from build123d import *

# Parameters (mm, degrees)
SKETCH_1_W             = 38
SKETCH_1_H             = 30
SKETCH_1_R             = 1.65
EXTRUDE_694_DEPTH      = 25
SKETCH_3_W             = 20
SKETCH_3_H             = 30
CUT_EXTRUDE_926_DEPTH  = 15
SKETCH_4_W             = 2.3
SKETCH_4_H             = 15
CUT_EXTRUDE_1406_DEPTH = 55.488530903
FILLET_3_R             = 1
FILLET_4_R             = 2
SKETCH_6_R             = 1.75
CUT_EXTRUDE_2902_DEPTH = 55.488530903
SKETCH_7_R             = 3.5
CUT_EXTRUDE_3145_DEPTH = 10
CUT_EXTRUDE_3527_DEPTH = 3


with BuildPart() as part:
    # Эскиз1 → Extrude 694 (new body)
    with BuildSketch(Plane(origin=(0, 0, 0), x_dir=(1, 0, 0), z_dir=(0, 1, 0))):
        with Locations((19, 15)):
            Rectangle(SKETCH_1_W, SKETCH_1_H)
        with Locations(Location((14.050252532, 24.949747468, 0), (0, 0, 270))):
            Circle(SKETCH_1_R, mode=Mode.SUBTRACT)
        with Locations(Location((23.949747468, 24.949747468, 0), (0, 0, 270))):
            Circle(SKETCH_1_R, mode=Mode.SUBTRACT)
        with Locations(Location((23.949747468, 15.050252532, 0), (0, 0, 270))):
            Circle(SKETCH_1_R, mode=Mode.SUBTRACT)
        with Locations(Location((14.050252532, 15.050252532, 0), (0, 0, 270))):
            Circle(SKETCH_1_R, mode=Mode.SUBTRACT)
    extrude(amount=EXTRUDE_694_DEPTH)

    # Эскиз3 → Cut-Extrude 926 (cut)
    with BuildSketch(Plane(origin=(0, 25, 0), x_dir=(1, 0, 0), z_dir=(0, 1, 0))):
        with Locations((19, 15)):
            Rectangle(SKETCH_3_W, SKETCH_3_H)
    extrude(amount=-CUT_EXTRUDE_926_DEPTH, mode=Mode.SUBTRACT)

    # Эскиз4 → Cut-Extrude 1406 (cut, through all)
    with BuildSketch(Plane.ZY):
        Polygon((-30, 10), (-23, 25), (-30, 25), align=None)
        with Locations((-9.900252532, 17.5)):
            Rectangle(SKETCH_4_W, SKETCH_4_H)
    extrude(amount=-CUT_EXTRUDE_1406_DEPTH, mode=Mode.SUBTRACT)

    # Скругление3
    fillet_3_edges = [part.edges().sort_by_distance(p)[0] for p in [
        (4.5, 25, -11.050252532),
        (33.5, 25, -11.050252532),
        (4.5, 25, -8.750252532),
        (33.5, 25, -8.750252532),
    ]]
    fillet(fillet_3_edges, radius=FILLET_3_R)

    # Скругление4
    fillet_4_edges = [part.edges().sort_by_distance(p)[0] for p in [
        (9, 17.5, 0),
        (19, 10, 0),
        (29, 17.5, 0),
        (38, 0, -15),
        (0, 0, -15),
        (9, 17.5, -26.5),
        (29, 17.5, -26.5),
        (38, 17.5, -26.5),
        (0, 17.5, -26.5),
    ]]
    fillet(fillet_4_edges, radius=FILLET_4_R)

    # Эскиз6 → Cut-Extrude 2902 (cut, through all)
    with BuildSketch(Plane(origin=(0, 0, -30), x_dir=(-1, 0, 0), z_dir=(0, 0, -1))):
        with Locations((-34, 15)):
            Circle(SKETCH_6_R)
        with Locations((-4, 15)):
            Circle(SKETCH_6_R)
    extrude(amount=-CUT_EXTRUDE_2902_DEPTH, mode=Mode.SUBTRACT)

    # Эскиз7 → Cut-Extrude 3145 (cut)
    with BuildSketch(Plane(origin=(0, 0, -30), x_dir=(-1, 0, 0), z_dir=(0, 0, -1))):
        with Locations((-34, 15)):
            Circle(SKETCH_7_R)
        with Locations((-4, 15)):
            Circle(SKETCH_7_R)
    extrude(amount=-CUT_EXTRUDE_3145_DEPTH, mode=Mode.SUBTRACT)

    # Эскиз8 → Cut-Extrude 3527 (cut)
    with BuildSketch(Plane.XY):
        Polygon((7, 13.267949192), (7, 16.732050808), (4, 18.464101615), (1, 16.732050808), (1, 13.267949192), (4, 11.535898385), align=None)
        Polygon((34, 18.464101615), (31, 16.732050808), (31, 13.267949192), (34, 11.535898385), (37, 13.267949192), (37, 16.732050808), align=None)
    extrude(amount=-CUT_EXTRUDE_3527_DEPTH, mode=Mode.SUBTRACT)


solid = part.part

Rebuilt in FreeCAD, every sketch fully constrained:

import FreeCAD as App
import Part
import Sketcher
Q = App.Units.Quantity


def edges_at(feature, points):
    """Names of the edges that pass closest to the given points."""
    edges = feature.Shape.Edges
    near = lambda p: min(range(len(edges)), key=lambda i: edges[i].distToShape(Part.Vertex(*p))[0])
    return sorted({f"Edge{near(p) + 1}" for p in points})

doc = App.newDocument("Part")
body = doc.addObject("PartDesign::Body", "Body")

# Sketch on XZ plane
sketch1 = body.newObject("Sketcher::SketchObject", "Sketch")
sketch1.AttachmentSupport = (doc.getObject("XZ_Plane"), [""])
sketch1.MapMode = "FlatFace"
sketch1.addGeometry(Part.LineSegment(App.Vector(0, -30, 0), App.Vector(0, 0, 0)), False)
sketch1.addGeometry(Part.LineSegment(App.Vector(0, 0, 0), App.Vector(38, 0, 0)), False)
sketch1.addGeometry(Part.LineSegment(App.Vector(38, 0, 0), App.Vector(38, -30, 0)), False)
sketch1.addGeometry(Part.LineSegment(App.Vector(38, -30, 0), App.Vector(0, -30, 0)), False)
sketch1.addGeometry(Part.Circle(App.Vector(14.1, -15.1, 0), App.Vector(0, 0, 1), 1.6), False)
sketch1.addGeometry(Part.Circle(App.Vector(23.9, -15.1, 0), App.Vector(0, 0, 1), 1.6), False)
sketch1.addGeometry(Part.Circle(App.Vector(14.1, -24.9, 0), App.Vector(0, 0, 1), 1.6), False)
sketch1.addGeometry(Part.Circle(App.Vector(23.9, -24.9, 0), App.Vector(0, 0, 1), 1.6), False)
sketch1.addConstraint(Sketcher.Constraint("Coincident", 0, 2, 1, 1))
sketch1.addConstraint(Sketcher.Constraint("Coincident", 1, 2, 2, 1))
sketch1.addConstraint(Sketcher.Constraint("Coincident", 2, 2, 3, 1))
sketch1.addConstraint(Sketcher.Constraint("Coincident", 3, 2, 0, 1))
sketch1.addConstraint(Sketcher.Constraint("Vertical", 0))
sketch1.addConstraint(Sketcher.Constraint("Horizontal", 1))
sketch1.addConstraint(Sketcher.Constraint("Vertical", 2))
sketch1.addConstraint(Sketcher.Constraint("Horizontal", 3))
sketch1.addConstraint(Sketcher.Constraint("Coincident", 0, 2, -1, 1))
sketch1.addConstraint(Sketcher.Constraint("Equal", 4, 5))
sketch1.addConstraint(Sketcher.Constraint("Equal", 5, 6))
sketch1.addConstraint(Sketcher.Constraint("Equal", 6, 7))
sketch1.addConstraint(Sketcher.Constraint("Horizontal", 4, 3, 5, 3))
sketch1.addConstraint(Sketcher.Constraint("Horizontal", 6, 3, 7, 3))
sketch1.addConstraint(Sketcher.Constraint("Vertical", 4, 3, 6, 3))
sketch1.addConstraint(Sketcher.Constraint("Vertical", 5, 3, 7, 3))
sketch1.addConstraint(Sketcher.Constraint("Diameter", 4, 3.3))
sketch1.addConstraint(Sketcher.Constraint("DistanceX", 1, 1, 1, 2, 38.0))
sketch1.addConstraint(Sketcher.Constraint("DistanceY", 0, 1, 0, 2, 30.0))
sketch1.addConstraint(Sketcher.Constraint("DistanceX", -1, 1, 4, 3, 14.050253))
sketch1.addConstraint(Sketcher.Constraint("DistanceY", 4, 3, -1, 1, 15.050253))
sketch1.addConstraint(Sketcher.Constraint("DistanceX", -1, 1, 5, 3, 23.949747))
sketch1.addConstraint(Sketcher.Constraint("DistanceY", 6, 3, -1, 1, 24.949747))
pad1 = body.newObject("PartDesign::Pad", "Pad")
pad1.Profile = sketch1
pad1.Length = 25
pad1.Reversed = True

# Sketch on XZ plane
sketch2 = body.newObject("Sketcher::SketchObject", "Sketch001")
sketch2.AttachmentSupport = (doc.getObject("XZ_Plane"), [""])
sketch2.MapMode = "FlatFace"
sketch2.AttachmentOffset = App.Placement(App.Vector(0, 0, -25), App.Rotation())
sketch2.addGeometry(Part.LineSegment(App.Vector(9, -30, 0), App.Vector(9, 0, 0)), False)
sketch2.addGeometry(Part.LineSegment(App.Vector(9, 0, 0), App.Vector(29, 0, 0)), False)
sketch2.addGeometry(Part.LineSegment(App.Vector(29, 0, 0), App.Vector(29, -30, 0)), False)
sketch2.addGeometry(Part.LineSegment(App.Vector(29, -30, 0), App.Vector(9, -30, 0)), False)
sketch2.addConstraint(Sketcher.Constraint("Coincident", 0, 2, 1, 1))
sketch2.addConstraint(Sketcher.Constraint("Coincident", 1, 2, 2, 1))
sketch2.addConstraint(Sketcher.Constraint("Coincident", 2, 2, 3, 1))
sketch2.addConstraint(Sketcher.Constraint("Coincident", 3, 2, 0, 1))
sketch2.addConstraint(Sketcher.Constraint("Vertical", 0))
sketch2.addConstraint(Sketcher.Constraint("Horizontal", 1))
sketch2.addConstraint(Sketcher.Constraint("Vertical", 2))
sketch2.addConstraint(Sketcher.Constraint("Horizontal", 3))
sketch2.addConstraint(Sketcher.Constraint("PointOnObject", 0, 2, -1))
sketch2.addConstraint(Sketcher.Constraint("DistanceX", 1, 1, 1, 2, 20.0))
sketch2.addConstraint(Sketcher.Constraint("DistanceY", 0, 1, 0, 2, 30.0))
sketch2.addConstraint(Sketcher.Constraint("DistanceX", -1, 1, 0, 2, 9.0))
pocket1 = body.newObject("PartDesign::Pocket", "Pocket")
pocket1.Profile = sketch2
pocket1.Length = 15
pocket1.Reversed = True

# Sketch on YZ plane
sketch3 = body.newObject("Sketcher::SketchObject", "Sketch002")
sketch3.AttachmentSupport = (doc.getObject("YZ_Plane"), [""])
sketch3.MapMode = "FlatFace"
sketch3.addGeometry(Part.LineSegment(App.Vector(10, -30, 0), App.Vector(25, -23, 0)), False)
sketch3.addGeometry(Part.LineSegment(App.Vector(25, -23, 0), App.Vector(25, -30, 0)), False)
sketch3.addGeometry(Part.LineSegment(App.Vector(25, -30, 0), App.Vector(10, -30, 0)), False)
sketch3.addGeometry(Part.LineSegment(App.Vector(25, -11.1, 0), App.Vector(10, -11.1, 0)), False)
sketch3.addGeometry(Part.LineSegment(App.Vector(10, -11.1, 0), App.Vector(10, -8.8, 0)), False)
sketch3.addGeometry(Part.LineSegment(App.Vector(10, -8.8, 0), App.Vector(25, -8.8, 0)), False)
sketch3.addGeometry(Part.LineSegment(App.Vector(25, -8.8, 0), App.Vector(25, -11.1, 0)), False)
sketch3.addConstraint(Sketcher.Constraint("Coincident", 0, 2, 1, 1))
sketch3.addConstraint(Sketcher.Constraint("Coincident", 1, 2, 2, 1))
sketch3.addConstraint(Sketcher.Constraint("Coincident", 2, 2, 0, 1))
sketch3.addConstraint(Sketcher.Constraint("Coincident", 3, 2, 4, 1))
sketch3.addConstraint(Sketcher.Constraint("Coincident", 4, 2, 5, 1))
sketch3.addConstraint(Sketcher.Constraint("Coincident", 5, 2, 6, 1))
sketch3.addConstraint(Sketcher.Constraint("Coincident", 6, 2, 3, 1))
sketch3.addConstraint(Sketcher.Constraint("Vertical", 1))
sketch3.addConstraint(Sketcher.Constraint("Horizontal", 2))
sketch3.addConstraint(Sketcher.Constraint("Horizontal", 3))
sketch3.addConstraint(Sketcher.Constraint("Vertical", 4))
sketch3.addConstraint(Sketcher.Constraint("Horizontal", 5))
sketch3.addConstraint(Sketcher.Constraint("Vertical", 6))
sketch3.addConstraint(Sketcher.Constraint("Vertical", 2, 2, 3, 2))
sketch3.addConstraint(Sketcher.Constraint("Vertical", 1, 2, 5, 2))
sketch3.addConstraint(Sketcher.Constraint("DistanceX", 2, 2, 2, 1, 15.0))
sketch3.addConstraint(Sketcher.Constraint("DistanceY", 1, 2, 1, 1, 7.0))
sketch3.addConstraint(Sketcher.Constraint("DistanceY", 4, 1, 4, 2, 2.3))
sketch3.addConstraint(Sketcher.Constraint("DistanceX", -1, 1, 0, 2, 25.0))
sketch3.addConstraint(Sketcher.Constraint("DistanceY", 0, 2, -1, 1, 23.0))
sketch3.addConstraint(Sketcher.Constraint("DistanceY", 3, 2, -1, 1, 11.050253))
pocket2 = body.newObject("PartDesign::Pocket", "Pocket001")
pocket2.Profile = sketch3
pocket2.Type = "ThroughAll"
pocket2.Reversed = True
doc.recompute()

fillet = body.newObject("PartDesign::Fillet", "Fillet")
fillet.Base = (pocket2, edges_at(pocket2, [
    (4.5, 25, -11.05),
    (33.5, 25, -11.05),
    (4.5, 25, -8.75),
    (33.5, 25, -8.75),
]))
fillet.Radius = 1
doc.recompute()

fillet2 = body.newObject("PartDesign::Fillet", "Fillet001")
fillet2.Base = (fillet, edges_at(fillet, [
    (9, 17.5, 0),
    (19, 10, 0),
    (29, 17.5, 0),
    (38, 0, -15),
    (0, 0, -15),
    (9, 17.5, -26.5),
    (29, 17.5, -26.5),
    (38, 17.5, -26.5),
    (0, 17.5, -26.5),
]))
fillet2.Radius = 2

# Sketch on XY plane
sketch4 = body.newObject("Sketcher::SketchObject", "Sketch003")
sketch4.AttachmentSupport = (doc.getObject("XY_Plane"), [""])
sketch4.MapMode = "FlatFace"
sketch4.AttachmentOffset = App.Placement(App.Vector(0, 0, -30), App.Rotation())
sketch4.addGeometry(Part.Circle(App.Vector(34, 15, 0), App.Vector(0, 0, 1), 1.8), False)
sketch4.addGeometry(Part.Circle(App.Vector(4, 15, 0), App.Vector(0, 0, 1), 1.8), False)
sketch4.addConstraint(Sketcher.Constraint("Equal", 0, 1))
sketch4.addConstraint(Sketcher.Constraint("Horizontal", 0, 3, 1, 3))
sketch4.addConstraint(Sketcher.Constraint("Diameter", 0, 3.5))
sketch4.addConstraint(Sketcher.Constraint("DistanceX", -1, 1, 0, 3, 34.0))
sketch4.addConstraint(Sketcher.Constraint("DistanceY", -1, 1, 0, 3, 15.0))
sketch4.addConstraint(Sketcher.Constraint("DistanceX", -1, 1, 1, 3, 4.0))
pocket3 = body.newObject("PartDesign::Pocket", "Pocket002")
pocket3.Profile = sketch4
pocket3.Type = "ThroughAll"
pocket3.Reversed = True

# Sketch on XY plane
sketch5 = body.newObject("Sketcher::SketchObject", "Sketch004")
sketch5.AttachmentSupport = (doc.getObject("XY_Plane"), [""])
sketch5.MapMode = "FlatFace"
sketch5.AttachmentOffset = App.Placement(App.Vector(0, 0, -30), App.Rotation())
sketch5.addGeometry(Part.Circle(App.Vector(34, 15, 0), App.Vector(0, 0, 1), 3.5), False)
sketch5.addGeometry(Part.Circle(App.Vector(4, 15, 0), App.Vector(0, 0, 1), 3.5), False)
sketch5.addConstraint(Sketcher.Constraint("Equal", 0, 1))
sketch5.addConstraint(Sketcher.Constraint("Horizontal", 0, 3, 1, 3))
sketch5.addConstraint(Sketcher.Constraint("Diameter", 0, 7.0))
sketch5.addConstraint(Sketcher.Constraint("DistanceX", -1, 1, 0, 3, 34.0))
sketch5.addConstraint(Sketcher.Constraint("DistanceY", -1, 1, 0, 3, 15.0))
sketch5.addConstraint(Sketcher.Constraint("DistanceX", -1, 1, 1, 3, 4.0))
pocket4 = body.newObject("PartDesign::Pocket", "Pocket003")
pocket4.Profile = sketch5
pocket4.Length = 10
pocket4.Reversed = True

# Sketch on XY plane
sketch6 = body.newObject("Sketcher::SketchObject", "Sketch005")
sketch6.AttachmentSupport = (doc.getObject("XY_Plane"), [""])
sketch6.MapMode = "FlatFace"
sketch6.addGeometry(Part.LineSegment(App.Vector(7, 13.3, 0), App.Vector(7, 16.7, 0)), False)
sketch6.addGeometry(Part.LineSegment(App.Vector(7, 16.7, 0), App.Vector(4, 18.5, 0)), False)
sketch6.addGeometry(Part.LineSegment(App.Vector(4, 18.5, 0), App.Vector(1, 16.7, 0)), False)
sketch6.addGeometry(Part.LineSegment(App.Vector(1, 16.7, 0), App.Vector(1, 13.3, 0)), False)
sketch6.addGeometry(Part.LineSegment(App.Vector(1, 13.3, 0), App.Vector(4, 11.5, 0)), False)
sketch6.addGeometry(Part.LineSegment(App.Vector(4, 11.5, 0), App.Vector(7, 13.3, 0)), False)
sketch6.addGeometry(Part.LineSegment(App.Vector(34, 18.5, 0), App.Vector(31, 16.7, 0)), False)
sketch6.addGeometry(Part.LineSegment(App.Vector(31, 16.7, 0), App.Vector(31, 13.3, 0)), False)
sketch6.addGeometry(Part.LineSegment(App.Vector(31, 13.3, 0), App.Vector(34, 11.5, 0)), False)
sketch6.addGeometry(Part.LineSegment(App.Vector(34, 11.5, 0), App.Vector(37, 13.3, 0)), False)
sketch6.addGeometry(Part.LineSegment(App.Vector(37, 13.3, 0), App.Vector(37, 16.7, 0)), False)
sketch6.addGeometry(Part.LineSegment(App.Vector(37, 16.7, 0), App.Vector(34, 18.5, 0)), False)
sketch6.addConstraint(Sketcher.Constraint("Coincident", 0, 2, 1, 1))
sketch6.addConstraint(Sketcher.Constraint("Coincident", 1, 2, 2, 1))
sketch6.addConstraint(Sketcher.Constraint("Coincident", 2, 2, 3, 1))
sketch6.addConstraint(Sketcher.Constraint("Coincident", 3, 2, 4, 1))
sketch6.addConstraint(Sketcher.Constraint("Coincident", 4, 2, 5, 1))
sketch6.addConstraint(Sketcher.Constraint("Coincident", 5, 2, 0, 1))
sketch6.addConstraint(Sketcher.Constraint("Coincident", 6, 2, 7, 1))
sketch6.addConstraint(Sketcher.Constraint("Coincident", 7, 2, 8, 1))
sketch6.addConstraint(Sketcher.Constraint("Coincident", 8, 2, 9, 1))
sketch6.addConstraint(Sketcher.Constraint("Coincident", 9, 2, 10, 1))
sketch6.addConstraint(Sketcher.Constraint("Coincident", 10, 2, 11, 1))
sketch6.addConstraint(Sketcher.Constraint("Coincident", 11, 2, 6, 1))
sketch6.addConstraint(Sketcher.Constraint("Vertical", 0))
sketch6.addConstraint(Sketcher.Constraint("Vertical", 3))
sketch6.addConstraint(Sketcher.Constraint("Vertical", 7))
sketch6.addConstraint(Sketcher.Constraint("Vertical", 10))
sketch6.addConstraint(Sketcher.Constraint("Parallel", 1, 4))
sketch6.addConstraint(Sketcher.Constraint("Parallel", 2, 5))
sketch6.addConstraint(Sketcher.Constraint("Parallel", 5, 6))
sketch6.addConstraint(Sketcher.Constraint("Parallel", 4, 8))
sketch6.addConstraint(Sketcher.Constraint("Parallel", 6, 9))
sketch6.addConstraint(Sketcher.Constraint("Parallel", 8, 11))
sketch6.addConstraint(Sketcher.Constraint("Horizontal", 0, 2, 2, 2))
sketch6.addConstraint(Sketcher.Constraint("Horizontal", 3, 2, 5, 2))
sketch6.addConstraint(Sketcher.Constraint("Horizontal", 2, 2, 6, 2))
sketch6.addConstraint(Sketcher.Constraint("Horizontal", 5, 2, 7, 2))
sketch6.addConstraint(Sketcher.Constraint("Horizontal", 4, 2, 8, 2))
sketch6.addConstraint(Sketcher.Constraint("Horizontal", 7, 2, 9, 2))
sketch6.addConstraint(Sketcher.Constraint("Horizontal", 6, 2, 10, 2))
sketch6.addConstraint(Sketcher.Constraint("Vertical", 1, 2, 4, 2))
sketch6.addConstraint(Sketcher.Constraint("Angle", 1, Q("150 deg")))
sketch6.addConstraint(Sketcher.Constraint("DistanceX", -1, 1, 0, 2, 7.0))
sketch6.addConstraint(Sketcher.Constraint("DistanceX", -1, 1, 1, 2, 4.0))
sketch6.addConstraint(Sketcher.Constraint("DistanceX", -1, 1, 6, 2, 31.0))
sketch6.addConstraint(Sketcher.Constraint("DistanceY", 0, 1, 0, 2, 3.464102))
sketch6.addConstraint(Sketcher.Constraint("DistanceY", -1, 1, 1, 2, 18.464102))
pocket5 = body.newObject("PartDesign::Pocket", "Pocket004")
pocket5.Profile = sketch6
pocket5.Length = 3

doc.recompute()
